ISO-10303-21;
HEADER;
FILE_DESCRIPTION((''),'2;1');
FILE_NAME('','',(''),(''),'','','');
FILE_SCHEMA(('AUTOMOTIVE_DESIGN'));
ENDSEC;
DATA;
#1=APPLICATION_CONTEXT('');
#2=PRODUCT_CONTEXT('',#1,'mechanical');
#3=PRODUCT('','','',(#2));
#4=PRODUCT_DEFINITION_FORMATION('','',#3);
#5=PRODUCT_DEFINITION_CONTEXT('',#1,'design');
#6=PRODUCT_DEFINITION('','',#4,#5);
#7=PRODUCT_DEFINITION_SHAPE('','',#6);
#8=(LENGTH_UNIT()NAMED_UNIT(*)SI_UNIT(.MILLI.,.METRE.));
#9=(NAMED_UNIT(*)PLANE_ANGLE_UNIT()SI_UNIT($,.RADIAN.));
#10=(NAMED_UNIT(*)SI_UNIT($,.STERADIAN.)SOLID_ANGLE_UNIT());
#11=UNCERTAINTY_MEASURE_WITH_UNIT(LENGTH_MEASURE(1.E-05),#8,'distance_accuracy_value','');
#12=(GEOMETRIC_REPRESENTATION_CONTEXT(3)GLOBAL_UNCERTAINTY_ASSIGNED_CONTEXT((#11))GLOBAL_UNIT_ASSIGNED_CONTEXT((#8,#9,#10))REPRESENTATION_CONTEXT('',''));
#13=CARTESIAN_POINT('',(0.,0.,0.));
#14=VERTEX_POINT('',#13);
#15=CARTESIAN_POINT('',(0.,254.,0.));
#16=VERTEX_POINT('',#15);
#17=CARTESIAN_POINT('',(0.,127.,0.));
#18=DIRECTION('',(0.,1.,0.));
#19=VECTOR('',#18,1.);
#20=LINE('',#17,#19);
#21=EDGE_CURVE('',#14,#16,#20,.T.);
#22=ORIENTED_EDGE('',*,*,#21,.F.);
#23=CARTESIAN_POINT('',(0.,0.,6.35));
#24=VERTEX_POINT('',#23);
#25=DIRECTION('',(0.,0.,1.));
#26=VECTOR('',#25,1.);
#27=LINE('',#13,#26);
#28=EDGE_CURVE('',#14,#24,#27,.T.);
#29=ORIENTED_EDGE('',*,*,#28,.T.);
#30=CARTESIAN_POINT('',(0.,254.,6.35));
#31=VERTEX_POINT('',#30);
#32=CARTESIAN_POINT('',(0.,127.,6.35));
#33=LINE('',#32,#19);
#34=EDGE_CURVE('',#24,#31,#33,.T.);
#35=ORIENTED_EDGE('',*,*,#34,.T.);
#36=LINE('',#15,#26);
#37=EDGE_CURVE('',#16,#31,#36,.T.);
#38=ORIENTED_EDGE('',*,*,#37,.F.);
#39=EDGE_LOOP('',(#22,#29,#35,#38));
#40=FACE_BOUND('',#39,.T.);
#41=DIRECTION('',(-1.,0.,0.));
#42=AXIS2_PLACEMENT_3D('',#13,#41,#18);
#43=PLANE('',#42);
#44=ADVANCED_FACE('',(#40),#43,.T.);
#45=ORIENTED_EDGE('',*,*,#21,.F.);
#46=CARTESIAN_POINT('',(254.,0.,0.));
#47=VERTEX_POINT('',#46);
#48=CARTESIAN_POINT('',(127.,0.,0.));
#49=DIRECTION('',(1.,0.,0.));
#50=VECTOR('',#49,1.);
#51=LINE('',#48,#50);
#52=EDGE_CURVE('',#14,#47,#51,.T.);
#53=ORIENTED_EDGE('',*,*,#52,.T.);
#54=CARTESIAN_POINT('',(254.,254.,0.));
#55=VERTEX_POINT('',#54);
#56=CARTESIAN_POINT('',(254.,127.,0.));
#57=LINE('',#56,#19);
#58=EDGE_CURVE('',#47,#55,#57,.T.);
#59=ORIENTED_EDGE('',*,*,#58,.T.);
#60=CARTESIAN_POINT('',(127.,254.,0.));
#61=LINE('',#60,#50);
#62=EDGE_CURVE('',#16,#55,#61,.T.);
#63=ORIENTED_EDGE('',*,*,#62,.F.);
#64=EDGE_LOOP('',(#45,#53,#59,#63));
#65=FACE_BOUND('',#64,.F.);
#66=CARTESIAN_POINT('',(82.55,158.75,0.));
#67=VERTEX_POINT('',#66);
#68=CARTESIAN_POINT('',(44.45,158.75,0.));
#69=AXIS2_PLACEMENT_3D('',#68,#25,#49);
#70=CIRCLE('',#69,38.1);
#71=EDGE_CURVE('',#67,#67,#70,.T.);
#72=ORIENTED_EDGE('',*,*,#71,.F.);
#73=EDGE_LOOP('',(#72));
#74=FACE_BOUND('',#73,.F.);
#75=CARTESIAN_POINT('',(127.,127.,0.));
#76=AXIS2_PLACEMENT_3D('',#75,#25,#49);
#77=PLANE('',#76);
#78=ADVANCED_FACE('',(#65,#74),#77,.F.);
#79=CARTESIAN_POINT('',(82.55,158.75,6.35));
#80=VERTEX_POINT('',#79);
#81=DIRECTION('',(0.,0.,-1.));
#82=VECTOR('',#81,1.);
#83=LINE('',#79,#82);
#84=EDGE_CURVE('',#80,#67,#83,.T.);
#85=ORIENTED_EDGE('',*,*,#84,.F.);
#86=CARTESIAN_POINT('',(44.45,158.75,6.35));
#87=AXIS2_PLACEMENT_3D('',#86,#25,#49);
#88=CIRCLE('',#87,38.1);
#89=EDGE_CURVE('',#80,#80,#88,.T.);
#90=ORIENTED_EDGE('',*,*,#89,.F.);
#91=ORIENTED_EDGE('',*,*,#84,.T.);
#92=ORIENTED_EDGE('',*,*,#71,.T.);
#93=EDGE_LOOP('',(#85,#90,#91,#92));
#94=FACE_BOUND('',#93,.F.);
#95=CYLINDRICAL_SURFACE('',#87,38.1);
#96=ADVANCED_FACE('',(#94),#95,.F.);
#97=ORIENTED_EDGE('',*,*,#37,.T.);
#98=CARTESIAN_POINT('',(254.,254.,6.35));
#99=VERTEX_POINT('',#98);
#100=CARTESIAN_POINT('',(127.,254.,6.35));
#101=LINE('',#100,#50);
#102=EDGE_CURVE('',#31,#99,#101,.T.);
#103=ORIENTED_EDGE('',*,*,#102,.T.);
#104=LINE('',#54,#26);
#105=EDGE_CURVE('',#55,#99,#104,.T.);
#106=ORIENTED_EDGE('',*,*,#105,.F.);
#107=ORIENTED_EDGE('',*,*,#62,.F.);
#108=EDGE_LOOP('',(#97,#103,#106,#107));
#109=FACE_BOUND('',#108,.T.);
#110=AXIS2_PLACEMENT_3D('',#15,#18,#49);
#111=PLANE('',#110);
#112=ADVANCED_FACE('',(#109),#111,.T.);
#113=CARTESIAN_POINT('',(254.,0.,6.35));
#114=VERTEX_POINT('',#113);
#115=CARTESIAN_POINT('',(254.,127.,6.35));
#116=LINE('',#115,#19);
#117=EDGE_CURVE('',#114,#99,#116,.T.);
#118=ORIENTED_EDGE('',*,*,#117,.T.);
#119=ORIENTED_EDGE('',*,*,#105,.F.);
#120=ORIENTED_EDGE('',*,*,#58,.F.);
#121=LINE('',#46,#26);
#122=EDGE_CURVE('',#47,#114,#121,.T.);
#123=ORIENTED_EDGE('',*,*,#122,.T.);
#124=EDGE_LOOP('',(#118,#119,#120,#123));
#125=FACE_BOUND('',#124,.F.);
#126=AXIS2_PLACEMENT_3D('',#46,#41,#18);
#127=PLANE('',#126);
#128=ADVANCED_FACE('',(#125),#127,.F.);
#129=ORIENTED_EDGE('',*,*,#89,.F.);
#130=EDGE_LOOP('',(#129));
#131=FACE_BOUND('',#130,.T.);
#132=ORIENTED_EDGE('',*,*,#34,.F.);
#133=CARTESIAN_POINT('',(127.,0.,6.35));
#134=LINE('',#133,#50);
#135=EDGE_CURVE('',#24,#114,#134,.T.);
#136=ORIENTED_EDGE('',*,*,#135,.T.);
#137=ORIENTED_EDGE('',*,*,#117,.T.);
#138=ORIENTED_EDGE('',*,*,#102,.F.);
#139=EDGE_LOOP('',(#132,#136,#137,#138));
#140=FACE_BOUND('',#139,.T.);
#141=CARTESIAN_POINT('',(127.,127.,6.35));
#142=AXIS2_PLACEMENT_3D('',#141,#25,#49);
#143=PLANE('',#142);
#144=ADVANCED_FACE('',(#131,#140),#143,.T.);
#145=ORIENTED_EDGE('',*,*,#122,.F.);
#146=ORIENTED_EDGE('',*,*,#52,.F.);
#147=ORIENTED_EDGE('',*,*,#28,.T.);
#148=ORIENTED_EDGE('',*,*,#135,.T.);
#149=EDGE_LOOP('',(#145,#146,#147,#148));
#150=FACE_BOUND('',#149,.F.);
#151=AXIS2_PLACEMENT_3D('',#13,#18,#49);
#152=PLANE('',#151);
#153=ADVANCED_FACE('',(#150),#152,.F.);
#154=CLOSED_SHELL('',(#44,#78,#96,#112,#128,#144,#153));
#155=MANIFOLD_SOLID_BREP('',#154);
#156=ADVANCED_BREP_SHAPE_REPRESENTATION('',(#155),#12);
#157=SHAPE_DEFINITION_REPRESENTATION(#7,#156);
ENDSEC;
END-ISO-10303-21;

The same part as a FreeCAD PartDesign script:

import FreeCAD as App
import Part
import Sketcher

V = App.Vector
Q = App.Units.Quantity

doc = App.newDocument("Part")
body = doc.addObject("PartDesign::Body", "Body")

# Sketch on XY plane
sketch1 = body.newObject("Sketcher::SketchObject", "Sketch")
sketch1.AttachmentSupport = (doc.getObject("XY_Plane"), [""])
sketch1.MapMode = "FlatFace"
sketch1.addGeometry(Part.LineSegment(V(0, 254, 0), V(0, 0, 0)), False)
sketch1.addGeometry(Part.LineSegment(V(0, 0, 0), V(254, 0, 0)), False)
sketch1.addGeometry(Part.LineSegment(V(254, 0, 0), V(254, 254, 0)), False)
sketch1.addGeometry(Part.LineSegment(V(254, 254, 0), V(0, 254, 0)), False)
sketch1.addConstraint(Sketcher.Constraint("Coincident", 0, 2, 1, 1))
sketch1.addConstraint(Sketcher.Constraint("Coincident", 1, 2, 2, 1))
sketch1.addConstraint(Sketcher.Constraint("Coincident", 2, 2, 3, 1))
sketch1.addConstraint(Sketcher.Constraint("Coincident", 3, 2, 0, 1))
sketch1.addConstraint(Sketcher.Constraint("Vertical", 0))
sketch1.addConstraint(Sketcher.Constraint("Horizontal", 1))
sketch1.addConstraint(Sketcher.Constraint("Vertical", 2))
sketch1.addConstraint(Sketcher.Constraint("Horizontal", 3))
sketch1.addConstraint(Sketcher.Constraint("Coincident", 0, 2, -1, 1))
sketch1.addConstraint(Sketcher.Constraint("Equal", 3, 0))
sketch1.addConstraint(Sketcher.Constraint("DistanceX", 1, 1, 1, 2, Q("10 in")))
pad1 = body.newObject("PartDesign::Pad", "Pad")
pad1.Profile = sketch1
pad1.Length = Q("0.25 in")

# Sketch on XY plane
sketch2 = body.newObject("Sketcher::SketchObject", "Sketch001")
sketch2.AttachmentSupport = (doc.getObject("XY_Plane"), [""])
sketch2.MapMode = "FlatFace"
sketch2.AttachmentOffset = App.Placement(V(0, 0, 0.25 * 25.4), App.Rotation())
sketch2.addGeometry(Part.Circle(V(44, 159, 0), V(0, 0, 1), 38), False)
sketch2.addConstraint(Sketcher.Constraint("Diameter", 0, Q("3 in")))
sketch2.addConstraint(Sketcher.Constraint("DistanceX", -1, 1, 0, 3, Q("1.75 in")))
sketch2.addConstraint(Sketcher.Constraint("DistanceY", -1, 1, 0, 3, Q("6.25 in")))
pocket1 = body.newObject("PartDesign::Pocket", "Pocket")
pocket1.Profile = sketch2
pocket1.Type = "ThroughAll"

doc.recompute()
